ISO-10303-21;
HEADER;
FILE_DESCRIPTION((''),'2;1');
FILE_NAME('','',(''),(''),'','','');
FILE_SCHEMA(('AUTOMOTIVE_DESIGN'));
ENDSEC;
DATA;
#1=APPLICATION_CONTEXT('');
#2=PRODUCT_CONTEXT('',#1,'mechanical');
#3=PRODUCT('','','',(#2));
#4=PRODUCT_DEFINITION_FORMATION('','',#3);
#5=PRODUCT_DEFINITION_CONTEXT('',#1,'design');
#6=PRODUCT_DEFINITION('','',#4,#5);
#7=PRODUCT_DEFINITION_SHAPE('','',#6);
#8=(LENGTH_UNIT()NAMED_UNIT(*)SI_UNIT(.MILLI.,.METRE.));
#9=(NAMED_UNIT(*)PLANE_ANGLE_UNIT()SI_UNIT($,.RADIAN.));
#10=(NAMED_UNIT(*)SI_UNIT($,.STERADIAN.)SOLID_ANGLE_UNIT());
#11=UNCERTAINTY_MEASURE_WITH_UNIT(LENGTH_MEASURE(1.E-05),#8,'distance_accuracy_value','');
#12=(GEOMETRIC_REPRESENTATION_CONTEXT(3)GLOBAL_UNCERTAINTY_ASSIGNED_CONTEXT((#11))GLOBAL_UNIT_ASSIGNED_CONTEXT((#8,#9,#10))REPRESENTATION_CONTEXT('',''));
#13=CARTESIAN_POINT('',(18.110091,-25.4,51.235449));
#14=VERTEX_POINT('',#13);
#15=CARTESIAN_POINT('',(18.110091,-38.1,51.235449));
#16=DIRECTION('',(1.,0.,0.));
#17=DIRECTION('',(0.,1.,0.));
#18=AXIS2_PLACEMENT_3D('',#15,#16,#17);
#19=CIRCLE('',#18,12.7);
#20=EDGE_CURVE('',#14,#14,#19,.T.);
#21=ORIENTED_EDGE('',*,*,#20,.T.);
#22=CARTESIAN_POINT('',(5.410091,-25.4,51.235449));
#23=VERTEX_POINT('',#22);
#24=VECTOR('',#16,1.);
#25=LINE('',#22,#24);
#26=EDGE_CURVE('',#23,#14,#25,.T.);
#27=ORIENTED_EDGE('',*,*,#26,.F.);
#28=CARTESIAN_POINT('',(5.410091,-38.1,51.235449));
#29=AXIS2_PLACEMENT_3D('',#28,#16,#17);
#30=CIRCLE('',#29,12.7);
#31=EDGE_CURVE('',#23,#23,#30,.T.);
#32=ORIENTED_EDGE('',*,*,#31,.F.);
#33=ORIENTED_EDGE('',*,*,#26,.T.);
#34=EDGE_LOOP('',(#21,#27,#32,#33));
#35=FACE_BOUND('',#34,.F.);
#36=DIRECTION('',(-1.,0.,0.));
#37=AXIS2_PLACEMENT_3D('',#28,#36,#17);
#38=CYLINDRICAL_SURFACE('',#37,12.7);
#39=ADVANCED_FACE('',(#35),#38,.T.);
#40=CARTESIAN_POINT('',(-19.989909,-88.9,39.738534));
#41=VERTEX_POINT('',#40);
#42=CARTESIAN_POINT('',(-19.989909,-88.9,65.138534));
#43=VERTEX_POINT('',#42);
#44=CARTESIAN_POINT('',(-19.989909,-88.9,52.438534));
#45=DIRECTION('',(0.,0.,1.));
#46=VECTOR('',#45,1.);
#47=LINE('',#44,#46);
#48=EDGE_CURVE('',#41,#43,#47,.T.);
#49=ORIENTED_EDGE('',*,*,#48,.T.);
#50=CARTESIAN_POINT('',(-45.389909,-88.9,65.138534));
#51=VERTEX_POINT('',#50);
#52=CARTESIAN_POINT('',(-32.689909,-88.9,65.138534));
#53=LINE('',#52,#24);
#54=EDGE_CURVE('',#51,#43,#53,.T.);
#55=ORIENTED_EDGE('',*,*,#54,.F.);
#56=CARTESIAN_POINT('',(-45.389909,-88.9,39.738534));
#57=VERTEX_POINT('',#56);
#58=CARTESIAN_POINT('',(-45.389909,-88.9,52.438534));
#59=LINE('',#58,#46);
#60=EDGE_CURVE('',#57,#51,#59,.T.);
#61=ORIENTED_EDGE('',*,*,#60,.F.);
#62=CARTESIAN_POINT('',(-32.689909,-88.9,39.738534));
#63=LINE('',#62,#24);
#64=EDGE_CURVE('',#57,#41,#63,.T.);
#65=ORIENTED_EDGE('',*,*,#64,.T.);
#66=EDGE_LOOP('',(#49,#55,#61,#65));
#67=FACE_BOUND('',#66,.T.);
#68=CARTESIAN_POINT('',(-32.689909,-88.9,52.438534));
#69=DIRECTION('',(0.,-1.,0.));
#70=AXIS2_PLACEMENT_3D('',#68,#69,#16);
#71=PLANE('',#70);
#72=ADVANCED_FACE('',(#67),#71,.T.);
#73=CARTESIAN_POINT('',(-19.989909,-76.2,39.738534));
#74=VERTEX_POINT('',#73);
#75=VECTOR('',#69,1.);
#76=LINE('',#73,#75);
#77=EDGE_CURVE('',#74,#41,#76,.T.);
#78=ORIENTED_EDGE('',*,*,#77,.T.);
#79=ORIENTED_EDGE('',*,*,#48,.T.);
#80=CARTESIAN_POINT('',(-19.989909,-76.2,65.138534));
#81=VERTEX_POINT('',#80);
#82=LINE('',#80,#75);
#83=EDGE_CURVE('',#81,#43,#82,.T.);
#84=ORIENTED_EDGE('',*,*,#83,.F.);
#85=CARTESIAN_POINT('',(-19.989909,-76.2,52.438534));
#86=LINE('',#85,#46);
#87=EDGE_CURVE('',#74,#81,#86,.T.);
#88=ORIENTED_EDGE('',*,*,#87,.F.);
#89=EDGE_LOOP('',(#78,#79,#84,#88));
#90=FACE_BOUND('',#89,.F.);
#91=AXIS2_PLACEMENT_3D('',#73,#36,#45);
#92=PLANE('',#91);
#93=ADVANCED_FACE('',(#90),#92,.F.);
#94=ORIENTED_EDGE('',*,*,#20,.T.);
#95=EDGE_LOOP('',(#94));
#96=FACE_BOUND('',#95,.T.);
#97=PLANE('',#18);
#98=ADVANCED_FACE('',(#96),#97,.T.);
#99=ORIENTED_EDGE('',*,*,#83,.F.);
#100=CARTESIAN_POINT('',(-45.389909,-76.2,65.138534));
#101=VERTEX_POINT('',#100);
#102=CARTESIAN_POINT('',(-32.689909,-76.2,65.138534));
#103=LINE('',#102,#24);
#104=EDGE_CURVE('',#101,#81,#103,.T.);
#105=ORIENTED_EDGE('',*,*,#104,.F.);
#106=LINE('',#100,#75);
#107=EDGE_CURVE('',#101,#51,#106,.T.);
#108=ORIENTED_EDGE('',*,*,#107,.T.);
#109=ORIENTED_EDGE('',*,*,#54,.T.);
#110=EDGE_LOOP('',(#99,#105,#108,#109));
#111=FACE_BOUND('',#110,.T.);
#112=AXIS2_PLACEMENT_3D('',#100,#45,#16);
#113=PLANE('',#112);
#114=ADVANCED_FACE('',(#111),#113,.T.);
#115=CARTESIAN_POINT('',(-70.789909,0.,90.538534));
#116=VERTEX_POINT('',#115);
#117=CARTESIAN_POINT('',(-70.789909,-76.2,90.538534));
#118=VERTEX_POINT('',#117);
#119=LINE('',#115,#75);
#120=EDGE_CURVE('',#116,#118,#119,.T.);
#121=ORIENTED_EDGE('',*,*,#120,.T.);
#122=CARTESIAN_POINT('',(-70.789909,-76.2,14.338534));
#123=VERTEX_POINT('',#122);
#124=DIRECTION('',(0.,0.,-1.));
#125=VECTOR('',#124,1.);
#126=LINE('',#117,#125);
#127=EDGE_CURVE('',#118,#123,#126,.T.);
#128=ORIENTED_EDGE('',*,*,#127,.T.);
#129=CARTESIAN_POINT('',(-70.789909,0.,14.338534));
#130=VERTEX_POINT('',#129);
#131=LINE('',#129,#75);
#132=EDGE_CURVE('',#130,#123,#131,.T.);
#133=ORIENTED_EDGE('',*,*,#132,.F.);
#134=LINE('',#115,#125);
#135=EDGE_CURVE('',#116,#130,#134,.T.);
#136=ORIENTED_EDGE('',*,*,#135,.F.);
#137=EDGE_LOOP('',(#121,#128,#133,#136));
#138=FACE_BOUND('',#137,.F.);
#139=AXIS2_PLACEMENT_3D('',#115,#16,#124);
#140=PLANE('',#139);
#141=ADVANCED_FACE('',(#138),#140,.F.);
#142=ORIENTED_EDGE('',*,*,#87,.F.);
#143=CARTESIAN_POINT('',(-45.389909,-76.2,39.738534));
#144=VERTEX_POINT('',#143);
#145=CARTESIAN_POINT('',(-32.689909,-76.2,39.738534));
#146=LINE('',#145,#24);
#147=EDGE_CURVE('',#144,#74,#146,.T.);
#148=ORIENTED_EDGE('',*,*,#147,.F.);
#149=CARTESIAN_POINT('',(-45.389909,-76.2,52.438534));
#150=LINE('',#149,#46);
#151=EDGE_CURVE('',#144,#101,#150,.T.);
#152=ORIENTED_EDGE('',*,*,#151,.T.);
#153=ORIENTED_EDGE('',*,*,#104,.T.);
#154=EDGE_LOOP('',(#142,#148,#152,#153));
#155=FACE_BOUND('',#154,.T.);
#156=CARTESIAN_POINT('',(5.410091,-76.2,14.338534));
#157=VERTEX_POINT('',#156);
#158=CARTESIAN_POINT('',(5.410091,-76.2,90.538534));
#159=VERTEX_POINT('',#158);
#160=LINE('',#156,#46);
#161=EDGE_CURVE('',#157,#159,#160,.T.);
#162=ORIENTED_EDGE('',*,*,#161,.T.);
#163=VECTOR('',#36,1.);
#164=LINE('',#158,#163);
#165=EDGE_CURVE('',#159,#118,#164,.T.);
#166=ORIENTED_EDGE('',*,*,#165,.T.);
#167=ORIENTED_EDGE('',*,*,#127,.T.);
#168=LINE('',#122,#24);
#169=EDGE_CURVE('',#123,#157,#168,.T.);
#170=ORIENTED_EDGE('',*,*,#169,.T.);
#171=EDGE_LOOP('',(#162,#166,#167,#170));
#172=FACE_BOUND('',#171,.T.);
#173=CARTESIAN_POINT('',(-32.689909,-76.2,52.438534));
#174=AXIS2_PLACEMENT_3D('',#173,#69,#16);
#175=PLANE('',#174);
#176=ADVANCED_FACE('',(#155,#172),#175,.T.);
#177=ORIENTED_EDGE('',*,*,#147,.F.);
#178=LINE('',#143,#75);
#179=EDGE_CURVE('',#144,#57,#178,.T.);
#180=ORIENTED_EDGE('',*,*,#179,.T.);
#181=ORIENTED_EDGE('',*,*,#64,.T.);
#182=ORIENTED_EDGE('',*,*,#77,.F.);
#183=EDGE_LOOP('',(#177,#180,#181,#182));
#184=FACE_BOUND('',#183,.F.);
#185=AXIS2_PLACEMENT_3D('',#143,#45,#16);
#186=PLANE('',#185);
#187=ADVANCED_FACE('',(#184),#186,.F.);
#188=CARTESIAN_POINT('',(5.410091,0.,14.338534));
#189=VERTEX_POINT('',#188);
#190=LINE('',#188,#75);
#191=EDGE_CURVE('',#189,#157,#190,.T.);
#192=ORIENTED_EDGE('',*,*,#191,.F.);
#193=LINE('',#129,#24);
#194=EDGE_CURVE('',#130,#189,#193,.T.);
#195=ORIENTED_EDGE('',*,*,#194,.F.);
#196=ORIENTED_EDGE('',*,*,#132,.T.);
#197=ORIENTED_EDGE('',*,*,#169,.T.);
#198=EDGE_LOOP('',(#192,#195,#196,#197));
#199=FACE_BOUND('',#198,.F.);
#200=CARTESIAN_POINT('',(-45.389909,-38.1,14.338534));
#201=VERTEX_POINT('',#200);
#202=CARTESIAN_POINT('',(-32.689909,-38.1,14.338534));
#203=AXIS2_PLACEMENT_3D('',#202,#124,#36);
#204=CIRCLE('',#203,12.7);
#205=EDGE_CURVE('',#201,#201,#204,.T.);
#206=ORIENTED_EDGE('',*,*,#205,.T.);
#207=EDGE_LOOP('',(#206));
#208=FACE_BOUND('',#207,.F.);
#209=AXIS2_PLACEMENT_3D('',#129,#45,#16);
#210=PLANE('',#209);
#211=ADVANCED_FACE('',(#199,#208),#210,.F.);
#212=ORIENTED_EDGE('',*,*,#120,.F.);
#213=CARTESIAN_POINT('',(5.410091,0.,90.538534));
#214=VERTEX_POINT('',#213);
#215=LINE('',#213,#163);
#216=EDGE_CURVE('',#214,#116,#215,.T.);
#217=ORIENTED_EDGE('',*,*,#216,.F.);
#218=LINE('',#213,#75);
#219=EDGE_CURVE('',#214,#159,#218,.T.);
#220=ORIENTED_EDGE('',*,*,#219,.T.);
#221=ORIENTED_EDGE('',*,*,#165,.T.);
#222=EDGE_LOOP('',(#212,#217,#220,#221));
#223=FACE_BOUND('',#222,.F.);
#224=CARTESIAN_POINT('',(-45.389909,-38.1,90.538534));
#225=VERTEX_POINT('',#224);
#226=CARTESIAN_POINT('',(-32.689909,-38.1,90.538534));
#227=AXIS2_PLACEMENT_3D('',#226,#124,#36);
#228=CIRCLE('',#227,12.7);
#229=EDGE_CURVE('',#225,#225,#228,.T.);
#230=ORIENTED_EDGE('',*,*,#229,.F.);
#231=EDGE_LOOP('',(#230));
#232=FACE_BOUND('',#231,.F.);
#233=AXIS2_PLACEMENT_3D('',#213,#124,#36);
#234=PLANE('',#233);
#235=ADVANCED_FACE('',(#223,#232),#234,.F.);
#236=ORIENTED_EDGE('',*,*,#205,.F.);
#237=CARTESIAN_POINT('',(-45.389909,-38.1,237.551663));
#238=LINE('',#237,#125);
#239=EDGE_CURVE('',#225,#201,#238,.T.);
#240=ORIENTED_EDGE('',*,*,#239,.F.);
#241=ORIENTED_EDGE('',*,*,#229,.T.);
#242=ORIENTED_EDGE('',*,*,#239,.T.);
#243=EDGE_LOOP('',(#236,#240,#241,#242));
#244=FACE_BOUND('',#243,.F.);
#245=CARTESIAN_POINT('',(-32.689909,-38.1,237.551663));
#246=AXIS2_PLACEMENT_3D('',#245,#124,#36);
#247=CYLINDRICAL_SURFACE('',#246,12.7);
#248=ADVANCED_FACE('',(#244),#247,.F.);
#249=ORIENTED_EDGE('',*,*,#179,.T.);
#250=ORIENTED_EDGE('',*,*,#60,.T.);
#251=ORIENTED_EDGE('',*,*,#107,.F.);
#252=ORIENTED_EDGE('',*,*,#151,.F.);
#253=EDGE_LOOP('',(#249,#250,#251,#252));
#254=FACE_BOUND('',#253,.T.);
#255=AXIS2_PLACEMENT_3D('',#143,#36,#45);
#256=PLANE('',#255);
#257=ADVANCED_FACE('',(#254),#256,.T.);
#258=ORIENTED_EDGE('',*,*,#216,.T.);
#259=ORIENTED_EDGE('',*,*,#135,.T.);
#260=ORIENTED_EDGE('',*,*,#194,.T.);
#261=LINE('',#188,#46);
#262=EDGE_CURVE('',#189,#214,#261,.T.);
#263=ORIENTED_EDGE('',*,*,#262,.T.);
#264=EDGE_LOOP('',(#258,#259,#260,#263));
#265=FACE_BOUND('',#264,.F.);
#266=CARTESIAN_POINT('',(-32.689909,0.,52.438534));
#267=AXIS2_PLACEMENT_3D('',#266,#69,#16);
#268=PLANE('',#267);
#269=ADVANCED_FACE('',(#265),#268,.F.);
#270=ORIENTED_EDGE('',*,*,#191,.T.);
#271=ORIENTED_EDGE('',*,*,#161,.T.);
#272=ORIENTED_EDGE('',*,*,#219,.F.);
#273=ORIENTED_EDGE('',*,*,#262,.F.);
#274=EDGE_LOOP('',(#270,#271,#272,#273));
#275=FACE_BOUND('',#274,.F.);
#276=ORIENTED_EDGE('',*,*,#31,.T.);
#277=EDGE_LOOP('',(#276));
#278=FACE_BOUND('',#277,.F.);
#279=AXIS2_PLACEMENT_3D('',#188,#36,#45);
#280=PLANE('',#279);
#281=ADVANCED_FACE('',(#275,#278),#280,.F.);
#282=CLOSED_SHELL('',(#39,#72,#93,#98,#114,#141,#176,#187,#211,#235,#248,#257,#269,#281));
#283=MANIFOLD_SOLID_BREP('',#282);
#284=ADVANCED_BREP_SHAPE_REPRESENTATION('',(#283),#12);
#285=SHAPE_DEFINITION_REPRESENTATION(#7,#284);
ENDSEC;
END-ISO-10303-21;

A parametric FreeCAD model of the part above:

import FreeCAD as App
import Part
import Sketcher

V = App.Vector
Q = App.Units.Quantity


def add_polygon(sketch, points):
    """Adds a closed chain of lines whose ends are joined by coincident constraints."""
    first, n = sketch.GeometryCount, len(points)
    for a, b in zip(points, points[1:] + points[:1]):
        sketch.addGeometry(Part.LineSegment(App.Vector(*a, 0), App.Vector(*b, 0)), False)
    for i in range(n):
        sketch.addConstraint(Sketcher.Constraint("Coincident", first + i, 2, first + (i + 1) % n, 1))

doc = App.newDocument("Part")
body = doc.addObject("PartDesign::Body", "Body")

# Sketch on XZ plane
sketch1 = body.newObject("Sketcher::SketchObject", "Sketch")
sketch1.AttachmentSupport = (doc.getObject("XZ_Plane"), [""])
sketch1.MapMode = "FlatFace"
add_polygon(sketch1, [(-71, 91), (-71, 14), (5, 14), (5, 91)])  # lines 0-3
sketch1.addConstraint([
    Sketcher.Constraint("Vertical", 0),
    Sketcher.Constraint("Horizontal", 1),
    Sketcher.Constraint("Vertical", 2),
    Sketcher.Constraint("Horizontal", 3),
    Sketcher.Constraint("Equal", 3, 0),
    Sketcher.Constraint("DistanceX", 1, 1, 1, 2, Q("3 in")),
    Sketcher.Constraint("DistanceX", 0, 2, -1, 1, Q("70.789909 mm")),
    Sketcher.Constraint("DistanceY", -1, 1, 0, 2, Q("14.338534 mm")),
])
pad1 = body.newObject("PartDesign::Pad", "Pad")
pad1.Profile = sketch1
pad1.Length = Q("3 in")

# Sketch on XZ plane
sketch2 = body.newObject("Sketcher::SketchObject", "Sketch001")
sketch2.AttachmentSupport = (doc.getObject("XZ_Plane"), [""])
sketch2.MapMode = "FlatFace"
sketch2.AttachmentOffset = App.Placement(V(0, 0, 3 * 25.4), App.Rotation())
add_polygon(sketch2, [(-45, 65), (-45, 40), (-20, 40), (-20, 65)])  # lines 0-3
sketch2.addConstraint([
    Sketcher.Constraint("Vertical", 0),
    Sketcher.Constraint("Horizontal", 1),
    Sketcher.Constraint("Vertical", 2),
    Sketcher.Constraint("Horizontal", 3),
    Sketcher.Constraint("Equal", 3, 0),
    Sketcher.Constraint("DistanceX", 1, 1, 1, 2, Q("1 in")),
    Sketcher.Constraint("DistanceX", 0, 2, -1, 1, Q("45.389909 mm")),
    Sketcher.Constraint("DistanceY", -1, 1, 0, 2, Q("39.738534 mm")),
])
pad2 = body.newObject("PartDesign::Pad", "Pad001")
pad2.Profile = sketch2
pad2.Length = Q("0.5 in")

# Sketch on YZ plane
sketch3 = body.newObject("Sketcher::SketchObject", "Sketch002")
sketch3.AttachmentSupport = (doc.getObject("YZ_Plane"), [""])
sketch3.MapMode = "FlatFace"
sketch3.AttachmentOffset = App.Placement(V(0, 0, 5.410091), App.Rotation())
sketch3.addGeometry(Part.Circle(V(-38, 51, 0), V(0, 0, 1), 13), False)
sketch3.addConstraint([
    Sketcher.Constraint("Diameter", 0, Q("1 in")),
    Sketcher.Constraint("DistanceX", 0, 3, -1, 1, Q("1.5 in")),
    Sketcher.Constraint("DistanceY", -1, 1, 0, 3, Q("51.235449 mm")),
])
pad3 = body.newObject("PartDesign::Pad", "Pad002")
pad3.Profile = sketch3
pad3.Length = Q("0.5 in")

# Sketch on XY plane
sketch4 = body.newObject("Sketcher::SketchObject", "Sketch003")
sketch4.AttachmentSupport = (doc.getObject("XY_Plane"), [""])
sketch4.MapMode = "FlatFace"
sketch4.AttachmentOffset = App.Placement(V(0, 0, 90.538534), App.Rotation())
sketch4.addGeometry(Part.Circle(V(-33, -38, 0), V(0, 0, 1), 13), False)
sketch4.addConstraint([
    Sketcher.Constraint("Diameter", 0, Q("1 in")),
    Sketcher.Constraint("DistanceY", 0, 3, -1, 1, Q("1.5 in")),
    Sketcher.Constraint("DistanceX", 0, 3, -1, 1, Q("32.689909 mm")),
])
doc.recompute()
hole = body.newObject("PartDesign::Hole", "Hole")
hole.Profile = sketch4
hole.ThreadType = "None"
hole.Diameter = Q("1 in")
hole.DepthType = "ThroughAll"

doc.recompute()
